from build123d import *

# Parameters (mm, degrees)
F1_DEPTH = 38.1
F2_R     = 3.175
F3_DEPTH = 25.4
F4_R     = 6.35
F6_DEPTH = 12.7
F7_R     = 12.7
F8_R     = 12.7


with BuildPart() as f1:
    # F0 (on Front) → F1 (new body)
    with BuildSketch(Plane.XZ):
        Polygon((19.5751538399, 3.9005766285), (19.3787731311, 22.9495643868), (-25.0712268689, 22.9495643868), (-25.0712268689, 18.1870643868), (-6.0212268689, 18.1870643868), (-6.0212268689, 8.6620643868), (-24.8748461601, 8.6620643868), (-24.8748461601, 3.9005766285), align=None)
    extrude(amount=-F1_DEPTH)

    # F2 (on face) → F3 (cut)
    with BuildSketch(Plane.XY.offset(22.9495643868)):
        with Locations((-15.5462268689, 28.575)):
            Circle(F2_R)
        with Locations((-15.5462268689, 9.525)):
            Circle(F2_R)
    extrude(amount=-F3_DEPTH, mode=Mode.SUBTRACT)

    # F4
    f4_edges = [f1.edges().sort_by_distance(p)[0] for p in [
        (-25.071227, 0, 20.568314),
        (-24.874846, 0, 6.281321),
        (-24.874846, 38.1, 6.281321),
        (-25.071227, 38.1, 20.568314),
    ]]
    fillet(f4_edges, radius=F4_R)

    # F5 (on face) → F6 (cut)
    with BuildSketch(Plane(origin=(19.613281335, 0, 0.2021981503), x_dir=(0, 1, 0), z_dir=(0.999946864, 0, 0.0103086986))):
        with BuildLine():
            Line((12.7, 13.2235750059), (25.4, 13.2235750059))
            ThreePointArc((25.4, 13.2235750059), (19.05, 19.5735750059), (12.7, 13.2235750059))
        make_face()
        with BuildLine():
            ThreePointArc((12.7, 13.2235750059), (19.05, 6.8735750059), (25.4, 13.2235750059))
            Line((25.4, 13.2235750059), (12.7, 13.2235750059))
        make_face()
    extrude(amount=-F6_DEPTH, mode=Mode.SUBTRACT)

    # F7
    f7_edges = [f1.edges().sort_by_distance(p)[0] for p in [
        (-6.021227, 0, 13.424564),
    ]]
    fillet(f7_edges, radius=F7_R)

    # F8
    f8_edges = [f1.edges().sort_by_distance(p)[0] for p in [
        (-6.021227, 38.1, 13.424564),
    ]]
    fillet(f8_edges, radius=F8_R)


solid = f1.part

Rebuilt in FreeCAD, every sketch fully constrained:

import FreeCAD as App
import Part
import Sketcher

V = App.Vector
Q = App.Units.Quantity


def edges_at(feature, points):
    """Names of the edges that pass closest to the given points."""
    edges = feature.Shape.Edges
    near = lambda p: min(range(len(edges)), key=lambda i: edges[i].distToShape(Part.Vertex(*p))[0])
    return sorted({f"Edge{near(p) + 1}" for p in points})


def add_polygon(sketch, points):
    """Adds a closed chain of lines whose ends are joined by coincident constraints."""
    first, n = sketch.GeometryCount, len(points)
    for a, b in zip(points, points[1:] + points[:1]):
        sketch.addGeometry(Part.LineSegment(App.Vector(*a, 0), App.Vector(*b, 0)), False)
    for i in range(n):
        sketch.addConstraint(Sketcher.Constraint("Coincident", first + i, 2, first + (i + 1) % n, 1))

doc = App.newDocument("Part")
body = doc.addObject("PartDesign::Body", "Body")

sketch1 = body.newObject("Sketcher::SketchObject", "Sketch")
sketch1.AttachmentSupport = (doc.getObject("XZ_Plane"), [""])
sketch1.MapMode = "FlatFace"
add_polygon(sketch1, [(19.6, 3.9), (19.4, 22.9), (-25.1, 22.9), (-25.1, 18.2), (-6, 18.2), (-6, 8.7), (-24.9, 8.7), (-24.9, 3.9)])
sketch1.addConstraint([
    Sketcher.Constraint("Horizontal", 1),
    Sketcher.Constraint("Vertical", 2),
    Sketcher.Constraint("Horizontal", 3),
    Sketcher.Constraint("Vertical", 4),
    Sketcher.Constraint("Horizontal", 5),
    Sketcher.Constraint("Vertical", 6),
    Sketcher.Constraint("Horizontal", 7),
    Sketcher.Constraint("Equal", 1, 7),
    Sketcher.Constraint("DistanceX", 3, 2, 0, 2, Q("1 in")),
    Sketcher.Constraint("DistanceX", 1, 2, 1, 1, Q("1.75 in")),
    Sketcher.Constraint("Distance", 0, Q("0.75 in")),
    Sketcher.Constraint("DistanceY", 2, 2, 2, 1, Q("0.1875 in")),
    Sketcher.Constraint("DistanceY", 4, 2, 4, 1, Q("0.375 in")),
    Sketcher.Constraint("DistanceX", 5, 2, 5, 1, 18.853619),
    Sketcher.Constraint("DistanceX", -1, 1, 0, 2, 19.378773),
    Sketcher.Constraint("DistanceY", -1, 1, 0, 2, 22.949564),
])
pad1 = body.newObject("PartDesign::Pad", "Pad")
pad1.Profile = sketch1
pad1.Length = Q("1.5 in")
pad1.Reversed = True

sketch2 = body.newObject("Sketcher::SketchObject", "Sketch001")
sketch2.AttachmentSupport = (doc.getObject("XY_Plane"), [""])
sketch2.MapMode = "FlatFace"
sketch2.AttachmentOffset = App.Placement(V(0, 0, 22.949564), App.Rotation())
sketch2.addGeometry([
    Part.Circle(V(-15.5, 28.6, 0), V(0, 0, 1), 3.2),
    Part.Circle(V(-15.5, 9.5, 0), V(0, 0, 1), 3.2),
], False)
sketch2.addConstraint([
    Sketcher.Constraint("Equal", 0, 1),
    Sketcher.Constraint("Vertical", 0, 3, 1, 3),
    Sketcher.Constraint("Diameter", 0, Q("0.25 in")),
    Sketcher.Constraint("DistanceY", 1, 3, 0, 3, Q("0.75 in")),
    Sketcher.Constraint("DistanceY", -1, 1, 0, 3, Q("1.125 in")),
    Sketcher.Constraint("DistanceX", 0, 3, -1, 1, 15.546227),
])
pocket1 = body.newObject("PartDesign::Pocket", "Pocket")
pocket1.Profile = sketch2
pocket1.Length = Q("1 in")
doc.recompute()

fillet = body.newObject("PartDesign::Fillet", "Fillet")
fillet.Base = (pocket1, edges_at(pocket1, [
    (-25.071, 0, 20.568),
    (-24.875, 0, 6.281),
    (-24.875, 38.1, 6.281),
    (-25.071, 38.1, 20.568),
]))
fillet.Radius = Q("0.25 in")

sketch3 = body.newObject("Sketcher::SketchObject", "Sketch002")
sketch3.Placement = App.Placement(V(19.613281, 0, 0.202198), App.Rotation(V(0, 1, 0), V(-0.010308699, 0, 0.999946864), V(0.999946864, 0, 0.010308699), "ZXY"))
sketch3.addGeometry(Part.Circle(V(19, 13, 0), V(0, 0, 1), 6), False)
sketch3.addConstraint([
    Sketcher.Constraint("Diameter", 0, Q("0.5 in")),
    Sketcher.Constraint("DistanceX", -1, 1, 0, 3, Q("0.75 in")),
    Sketcher.Constraint("DistanceY", -1, 1, 0, 3, 13.223575),
])
pocket2 = body.newObject("PartDesign::Pocket", "Pocket001")
pocket2.Profile = sketch3
pocket2.Length = Q("0.5 in")
doc.recompute()

fillet2 = body.newObject("PartDesign::Fillet", "Fillet001")
fillet2.Base = (pocket2, edges_at(pocket2, [(-6.021, 0, 13.425)]))
fillet2.Radius = Q("0.5 in")
doc.recompute()

fillet3 = body.newObject("PartDesign::Fillet", "Fillet002")
fillet3.Base = (fillet2, edges_at(fillet2, [(-6.021, 38.1, 13.425)]))
fillet3.Radius = Q("0.5 in")

doc.recompute()
